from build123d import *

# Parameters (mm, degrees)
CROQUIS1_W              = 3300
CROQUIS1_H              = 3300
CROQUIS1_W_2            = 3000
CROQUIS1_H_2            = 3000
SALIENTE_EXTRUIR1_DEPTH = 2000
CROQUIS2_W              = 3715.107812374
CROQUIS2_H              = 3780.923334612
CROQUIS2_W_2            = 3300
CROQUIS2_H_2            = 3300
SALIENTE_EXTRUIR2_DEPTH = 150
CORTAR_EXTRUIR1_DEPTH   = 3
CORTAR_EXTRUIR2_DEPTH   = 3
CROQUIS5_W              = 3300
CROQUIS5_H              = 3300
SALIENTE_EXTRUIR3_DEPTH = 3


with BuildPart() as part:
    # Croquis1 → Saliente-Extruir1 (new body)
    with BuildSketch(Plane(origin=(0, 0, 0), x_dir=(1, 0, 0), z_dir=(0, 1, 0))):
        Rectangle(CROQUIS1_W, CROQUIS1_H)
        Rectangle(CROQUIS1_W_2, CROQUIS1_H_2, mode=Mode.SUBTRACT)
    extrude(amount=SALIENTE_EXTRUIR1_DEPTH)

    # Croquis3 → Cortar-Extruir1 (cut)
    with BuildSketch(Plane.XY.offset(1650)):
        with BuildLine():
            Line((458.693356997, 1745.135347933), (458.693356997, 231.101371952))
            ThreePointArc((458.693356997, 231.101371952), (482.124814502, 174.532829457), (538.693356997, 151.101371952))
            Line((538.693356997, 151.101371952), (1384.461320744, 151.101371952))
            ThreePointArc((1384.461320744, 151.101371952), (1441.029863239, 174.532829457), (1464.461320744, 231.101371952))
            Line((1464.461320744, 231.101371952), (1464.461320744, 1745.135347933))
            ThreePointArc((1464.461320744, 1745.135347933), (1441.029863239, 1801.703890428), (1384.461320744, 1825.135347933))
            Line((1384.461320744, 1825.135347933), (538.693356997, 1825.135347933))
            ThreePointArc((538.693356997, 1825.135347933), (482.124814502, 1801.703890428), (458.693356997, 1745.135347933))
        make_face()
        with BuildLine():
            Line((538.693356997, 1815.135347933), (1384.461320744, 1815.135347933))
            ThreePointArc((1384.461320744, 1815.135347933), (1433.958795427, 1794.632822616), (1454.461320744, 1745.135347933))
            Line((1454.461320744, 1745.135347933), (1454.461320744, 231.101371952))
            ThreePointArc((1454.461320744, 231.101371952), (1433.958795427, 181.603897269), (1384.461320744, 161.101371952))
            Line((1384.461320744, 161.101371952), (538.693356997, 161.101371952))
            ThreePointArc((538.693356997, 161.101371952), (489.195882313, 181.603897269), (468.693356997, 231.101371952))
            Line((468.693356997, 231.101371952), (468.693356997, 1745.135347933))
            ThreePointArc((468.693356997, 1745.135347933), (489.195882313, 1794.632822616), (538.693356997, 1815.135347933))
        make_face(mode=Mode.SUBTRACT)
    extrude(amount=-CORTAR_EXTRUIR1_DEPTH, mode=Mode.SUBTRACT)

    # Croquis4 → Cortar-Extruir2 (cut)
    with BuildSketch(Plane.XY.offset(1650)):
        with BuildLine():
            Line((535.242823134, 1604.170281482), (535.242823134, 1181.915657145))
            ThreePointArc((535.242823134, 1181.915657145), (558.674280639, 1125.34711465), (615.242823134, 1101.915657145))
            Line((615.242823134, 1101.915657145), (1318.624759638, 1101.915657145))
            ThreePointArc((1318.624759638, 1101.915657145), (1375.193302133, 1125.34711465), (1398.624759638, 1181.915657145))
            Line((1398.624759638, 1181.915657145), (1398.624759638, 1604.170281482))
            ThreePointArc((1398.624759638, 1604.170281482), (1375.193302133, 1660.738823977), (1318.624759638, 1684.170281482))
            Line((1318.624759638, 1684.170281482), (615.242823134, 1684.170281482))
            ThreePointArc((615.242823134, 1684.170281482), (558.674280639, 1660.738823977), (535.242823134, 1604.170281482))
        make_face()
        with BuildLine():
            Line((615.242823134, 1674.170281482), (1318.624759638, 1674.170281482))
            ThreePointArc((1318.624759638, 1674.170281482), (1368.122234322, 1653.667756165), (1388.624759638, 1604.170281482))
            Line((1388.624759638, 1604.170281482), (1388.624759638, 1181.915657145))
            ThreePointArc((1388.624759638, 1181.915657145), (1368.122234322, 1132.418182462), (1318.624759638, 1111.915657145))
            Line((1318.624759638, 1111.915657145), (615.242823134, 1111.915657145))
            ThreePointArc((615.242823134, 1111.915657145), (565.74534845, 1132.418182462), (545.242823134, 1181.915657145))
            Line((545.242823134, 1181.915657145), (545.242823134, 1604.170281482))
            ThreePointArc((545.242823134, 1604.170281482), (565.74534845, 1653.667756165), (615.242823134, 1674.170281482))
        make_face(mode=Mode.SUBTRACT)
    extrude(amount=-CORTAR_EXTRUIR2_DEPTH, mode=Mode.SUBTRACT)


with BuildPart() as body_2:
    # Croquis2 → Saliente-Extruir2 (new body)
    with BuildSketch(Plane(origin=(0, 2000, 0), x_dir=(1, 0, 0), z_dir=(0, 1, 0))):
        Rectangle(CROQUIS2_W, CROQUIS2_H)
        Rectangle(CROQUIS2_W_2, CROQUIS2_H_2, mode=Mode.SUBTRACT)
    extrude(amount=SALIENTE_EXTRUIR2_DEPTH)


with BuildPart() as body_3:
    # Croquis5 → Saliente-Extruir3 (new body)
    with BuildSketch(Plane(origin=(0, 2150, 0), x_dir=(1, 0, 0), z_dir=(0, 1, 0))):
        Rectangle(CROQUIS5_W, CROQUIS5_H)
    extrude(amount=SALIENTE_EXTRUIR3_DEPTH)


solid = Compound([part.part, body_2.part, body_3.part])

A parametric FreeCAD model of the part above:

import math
import FreeCAD as App
import Part
import Sketcher
from FreeCAD import Vector


def add_polygon(sketch, points):
    """Adds a closed chain of lines whose ends are joined by coincident constraints."""
    first, n = sketch.GeometryCount, len(points)
    for a, b in zip(points, points[1:] + points[:1]):
        sketch.addGeometry(Part.LineSegment(App.Vector(*a, 0), App.Vector(*b, 0)), False)
    for i in range(n):
        sketch.addConstraint(Sketcher.Constraint("Coincident", first + i, 2, first + (i + 1) % n, 1))

doc = App.newDocument("Part")
body = doc.addObject("PartDesign::Body", "Body")

sketch1 = body.newObject("Sketcher::SketchObject", "Sketch")
sketch1.AttachmentSupport = (doc.getObject("XZ_Plane"), [""])
sketch1.MapMode = "FlatFace"
add_polygon(sketch1, [(-1650, -1650), (-1650, 1650), (1650, 1650), (1650, -1650)])
add_polygon(sketch1, [(1500, 1500), (-1500, 1500), (-1500, -1500), (1500, -1500)])
sketch1.addConstraint([
    Sketcher.Constraint("Vertical", 0),
    Sketcher.Constraint("Horizontal", 1),
    Sketcher.Constraint("Vertical", 2),
    Sketcher.Constraint("Horizontal", 3),
    Sketcher.Constraint("Horizontal", 4),
    Sketcher.Constraint("Vertical", 5),
    Sketcher.Constraint("Horizontal", 6),
    Sketcher.Constraint("Vertical", 7),
    Sketcher.Constraint("Symmetric", 0, 2, 2, 2, -1, 1),
    Sketcher.Constraint("Symmetric", 4, 2, 6, 2, -1, 1),
    Sketcher.Constraint("Equal", 3, 0),
    Sketcher.Constraint("Equal", 6, 5),
    Sketcher.Constraint("DistanceX", 1, 1, 1, 2, 3300.0),
    Sketcher.Constraint("DistanceX", 4, 2, 4, 1, 3000.0),
])
pad1 = body.newObject("PartDesign::Pad", "Pad")
pad1.Profile = sketch1
pad1.Length = 2000
pad1.Reversed = True

sketch2 = body.newObject("Sketcher::SketchObject", "Sketch001")
sketch2.AttachmentSupport = (doc.getObject("XY_Plane"), [""])
sketch2.MapMode = "FlatFace"
sketch2.AttachmentOffset = App.Placement(Vector(0, 0, 1650), App.Rotation())
sketch2.addGeometry([
    Part.LineSegment(Vector(458.693357, 1745.135348, 0), Vector(458.693357, 231.101372, 0)),
    Part.ArcOfCircle(Part.Circle(Vector(538.693357, 231.101372, 0), Vector(0, 0, 1), 80), math.radians(180), math.radians(270)),
    Part.LineSegment(Vector(538.693357, 151.101372, 0), Vector(1384.461321, 151.101372, 0)),
    Part.ArcOfCircle(Part.Circle(Vector(1384.461321, 231.101372, 0), Vector(0, 0, 1), 80), math.radians(-90), math.radians(0)),
    Part.LineSegment(Vector(1464.461321, 231.101372, 0), Vector(1464.461321, 1745.135348, 0)),
    Part.ArcOfCircle(Part.Circle(Vector(1384.461321, 1745.135348, 0), Vector(0, 0, 1), 80), math.radians(0), math.radians(90)),
    Part.LineSegment(Vector(1384.461321, 1825.135348, 0), Vector(538.693357, 1825.135348, 0)),
    Part.ArcOfCircle(Part.Circle(Vector(538.693357, 1745.135348, 0), Vector(0, 0, 1), 80), math.radians(90), math.radians(180)),
    Part.ArcOfCircle(Part.Circle(Vector(538.693357, 1745.135348, 0), Vector(0, 0, 1), 70), math.radians(90), math.radians(180)),
    Part.LineSegment(Vector(538.693357, 1815.135348, 0), Vector(1384.461321, 1815.135348, 0)),
    Part.ArcOfCircle(Part.Circle(Vector(1384.461321, 1745.135348, 0), Vector(0, 0, 1), 70), math.radians(0), math.radians(90)),
    Part.LineSegment(Vector(1454.461321, 1745.135348, 0), Vector(1454.461321, 231.101372, 0)),
    Part.ArcOfCircle(Part.Circle(Vector(1384.461321, 231.101372, 0), Vector(0, 0, 1), 70), math.radians(-90), math.radians(0)),
    Part.LineSegment(Vector(1384.461321, 161.101372, 0), Vector(538.693357, 161.101372, 0)),
    Part.ArcOfCircle(Part.Circle(Vector(538.693357, 231.101372, 0), Vector(0, 0, 1), 70), math.radians(180), math.radians(270)),
    Part.LineSegment(Vector(468.693357, 231.101372, 0), Vector(468.693357, 1745.135348, 0)),
], False)
sketch2.addConstraint([
    Sketcher.Constraint("Tangent", 0, 2, 1, 1),
    Sketcher.Constraint("Tangent", 1, 2, 2, 1),
    Sketcher.Constraint("Tangent", 2, 2, 3, 1),
    Sketcher.Constraint("Tangent", 3, 2, 4, 1),
    Sketcher.Constraint("Tangent", 4, 2, 5, 1),
    Sketcher.Constraint("Tangent", 5, 2, 6, 1),
    Sketcher.Constraint("Tangent", 6, 2, 7, 1),
    Sketcher.Constraint("Tangent", 7, 2, 0, 1),
    Sketcher.Constraint("Tangent", 8, 1, 9, 1),
    Sketcher.Constraint("Tangent", 9, 2, 10, 2),
    Sketcher.Constraint("Tangent", 10, 1, 11, 1),
    Sketcher.Constraint("Tangent", 11, 2, 12, 2),
    Sketcher.Constraint("Tangent", 12, 1, 13, 1),
    Sketcher.Constraint("Tangent", 13, 2, 14, 2),
    Sketcher.Constraint("Tangent", 14, 1, 15, 1),
    Sketcher.Constraint("Tangent", 15, 2, 8, 2),
    Sketcher.Constraint("Vertical", 0),
    Sketcher.Constraint("Horizontal", 2),
    Sketcher.Constraint("Vertical", 4),
    Sketcher.Constraint("Horizontal", 6),
    Sketcher.Constraint("Horizontal", 9),
    Sketcher.Constraint("Vertical", 11),
    Sketcher.Constraint("Horizontal", 13),
    Sketcher.Constraint("Vertical", 15),
    Sketcher.Constraint("Coincident", 8, 3, 7, 3),
    Sketcher.Constraint("Coincident", 10, 3, 5, 3),
    Sketcher.Constraint("Coincident", 12, 3, 3, 3),
    Sketcher.Constraint("Equal", 1, 3),
    Sketcher.Constraint("Equal", 3, 5),
    Sketcher.Constraint("Equal", 5, 7),
    Sketcher.Constraint("Equal", 12, 14),
    Sketcher.Constraint("Radius", 1, 80.0),
    Sketcher.Constraint("Radius", 8, 70.0),
    Sketcher.Constraint("DistanceX", 2, 1, 2, 2, 845.767964),
    Sketcher.Constraint("DistanceY", 0, 2, 0, 1, 1514.033976),
    Sketcher.Constraint("DistanceY", -1, 1, 1, 3, 231.101372),
    Sketcher.Constraint("DistanceX", -1, 1, 3, 3, 1384.461321),
])
pocket1 = body.newObject("PartDesign::Pocket", "Pocket")
pocket1.Profile = sketch2
pocket1.Length = 3

sketch3 = body.newObject("Sketcher::SketchObject", "Sketch002")
sketch3.AttachmentSupport = (doc.getObject("XY_Plane"), [""])
sketch3.MapMode = "FlatFace"
sketch3.AttachmentOffset = App.Placement(Vector(0, 0, 1650), App.Rotation())
sketch3.addGeometry([
    Part.LineSegment(Vector(535.242823, 1604.170281, 0), Vector(535.242823, 1181.915657, 0)),
    Part.ArcOfCircle(Part.Circle(Vector(615.242823, 1181.915657, 0), Vector(0, 0, 1), 80), math.radians(180), math.radians(270)),
    Part.LineSegment(Vector(615.242823, 1101.915657, 0), Vector(1318.62476, 1101.915657, 0)),
    Part.ArcOfCircle(Part.Circle(Vector(1318.62476, 1181.915657, 0), Vector(0, 0, 1), 80), math.radians(-90), math.radians(0)),
    Part.LineSegment(Vector(1398.62476, 1181.915657, 0), Vector(1398.62476, 1604.170281, 0)),
    Part.ArcOfCircle(Part.Circle(Vector(1318.62476, 1604.170281, 0), Vector(0, 0, 1), 80), math.radians(0), math.radians(90)),
    Part.LineSegment(Vector(1318.62476, 1684.170281, 0), Vector(615.242823, 1684.170281, 0)),
    Part.ArcOfCircle(Part.Circle(Vector(615.242823, 1604.170281, 0), Vector(0, 0, 1), 80), math.radians(90), math.radians(180)),
    Part.ArcOfCircle(Part.Circle(Vector(615.242823, 1604.170281, 0), Vector(0, 0, 1), 70), math.radians(90), math.radians(180)),
    Part.LineSegment(Vector(615.242823, 1674.170281, 0), Vector(1318.62476, 1674.170281, 0)),
    Part.ArcOfCircle(Part.Circle(Vector(1318.62476, 1604.170281, 0), Vector(0, 0, 1), 70), math.radians(0), math.radians(90)),
    Part.LineSegment(Vector(1388.62476, 1604.170281, 0), Vector(1388.62476, 1181.915657, 0)),
    Part.ArcOfCircle(Part.Circle(Vector(1318.62476, 1181.915657, 0), Vector(0, 0, 1), 70), math.radians(-90), math.radians(0)),
    Part.LineSegment(Vector(1318.62476, 1111.915657, 0), Vector(615.242823, 1111.915657, 0)),
    Part.ArcOfCircle(Part.Circle(Vector(615.242823, 1181.915657, 0), Vector(0, 0, 1), 70), math.radians(180), math.radians(270)),
    Part.LineSegment(Vector(545.242823, 1181.915657, 0), Vector(545.242823, 1604.170281, 0)),
], False)
sketch3.addConstraint([
    Sketcher.Constraint("Tangent", 0, 2, 1, 1),
    Sketcher.Constraint("Tangent", 1, 2, 2, 1),
    Sketcher.Constraint("Tangent", 2, 2, 3, 1),
    Sketcher.Constraint("Tangent", 3, 2, 4, 1),
    Sketcher.Constraint("Tangent", 4, 2, 5, 1),
    Sketcher.Constraint("Tangent", 5, 2, 6, 1),
    Sketcher.Constraint("Tangent", 6, 2, 7, 1),
    Sketcher.Constraint("Tangent", 7, 2, 0, 1),
    Sketcher.Constraint("Tangent", 8, 1, 9, 1),
    Sketcher.Constraint("Tangent", 9, 2, 10, 2),
    Sketcher.Constraint("Tangent", 10, 1, 11, 1),
    Sketcher.Constraint("Tangent", 11, 2, 12, 2),
    Sketcher.Constraint("Tangent", 12, 1, 13, 1),
    Sketcher.Constraint("Tangent", 13, 2, 14, 2),
    Sketcher.Constraint("Tangent", 14, 1, 15, 1),
    Sketcher.Constraint("Tangent", 15, 2, 8, 2),
    Sketcher.Constraint("Vertical", 0),
    Sketcher.Constraint("Horizontal", 2),
    Sketcher.Constraint("Vertical", 4),
    Sketcher.Constraint("Horizontal", 6),
    Sketcher.Constraint("Horizontal", 9),
    Sketcher.Constraint("Vertical", 11),
    Sketcher.Constraint("Horizontal", 13),
    Sketcher.Constraint("Vertical", 15),
    Sketcher.Constraint("Coincident", 8, 3, 7, 3),
    Sketcher.Constraint("Coincident", 10, 3, 5, 3),
    Sketcher.Constraint("Coincident", 12, 3, 3, 3),
    Sketcher.Constraint("Equal", 1, 3),
    Sketcher.Constraint("Equal", 3, 5),
    Sketcher.Constraint("Equal", 5, 7),
    Sketcher.Constraint("Equal", 12, 14),
    Sketcher.Constraint("Radius", 1, 80.0),
    Sketcher.Constraint("Radius", 8, 70.0),
    Sketcher.Constraint("DistanceX", 2, 1, 2, 2, 703.381937),
    Sketcher.Constraint("DistanceY", 0, 2, 0, 1, 422.254624),
    Sketcher.Constraint("DistanceX", -1, 1, 3, 3, 1318.62476),
    Sketcher.Constraint("DistanceY", -1, 1, 5, 3, 1604.170281),
])
pocket2 = body.newObject("PartDesign::Pocket", "Pocket001")
pocket2.Profile = sketch3
pocket2.Length = 3
body2 = doc.addObject("PartDesign::Body", "Body001")

sketch4 = body2.newObject("Sketcher::SketchObject", "Sketch003")
sketch4.AttachmentSupport = (doc.getObject("XZ_Plane001"), [""])
sketch4.MapMode = "FlatFace"
sketch4.AttachmentOffset = App.Placement(Vector(0, 0, -2000), App.Rotation())
add_polygon(sketch4, [(-1857.553906, -1890.461667), (-1857.553906, 1890.461667), (1857.553906, 1890.461667), (1857.553906, -1890.461667)])
add_polygon(sketch4, [(1650, 1650), (-1650, 1650), (-1650, -1650), (1650, -1650)])
sketch4.addConstraint([
    Sketcher.Constraint("Vertical", 0),
    Sketcher.Constraint("Horizontal", 1),
    Sketcher.Constraint("Vertical", 2),
    Sketcher.Constraint("Horizontal", 3),
    Sketcher.Constraint("Horizontal", 4),
    Sketcher.Constraint("Vertical", 5),
    Sketcher.Constraint("Horizontal", 6),
    Sketcher.Constraint("Vertical", 7),
    Sketcher.Constraint("Symmetric", 0, 2, 2, 2, -1, 1),
    Sketcher.Constraint("Symmetric", 4, 2, 6, 2, -1, 1),
    Sketcher.Constraint("Equal", 6, 5),
    Sketcher.Constraint("DistanceX", 4, 2, 4, 1, 3300.0),
    Sketcher.Constraint("DistanceX", 1, 1, 1, 2, 3715.107812),
    Sketcher.Constraint("DistanceY", 0, 1, 0, 2, 3780.923335),
])
pad2 = body2.newObject("PartDesign::Pad", "Pad001")
pad2.Profile = sketch4
pad2.Length = 150
pad2.Reversed = True
body3 = doc.addObject("PartDesign::Body", "Body002")

sketch5 = body3.newObject("Sketcher::SketchObject", "Sketch004")
sketch5.AttachmentSupport = (doc.getObject("XZ_Plane002"), [""])
sketch5.MapMode = "FlatFace"
sketch5.AttachmentOffset = App.Placement(Vector(0, 0, -2150), App.Rotation())
add_polygon(sketch5, [(-1650, -1650), (-1650, 1650), (1650, 1650), (1650, -1650)])
sketch5.addConstraint([
    Sketcher.Constraint("Vertical", 0),
    Sketcher.Constraint("Horizontal", 1),
    Sketcher.Constraint("Vertical", 2),
    Sketcher.Constraint("Horizontal", 3),
    Sketcher.Constraint("Symmetric", 0, 2, 2, 2, -1, 1),
    Sketcher.Constraint("Equal", 3, 0),
    Sketcher.Constraint("DistanceX", 1, 1, 1, 2, 3300.0),
])
pad3 = body3.newObject("PartDesign::Pad", "Pad002")
pad3.Profile = sketch5
pad3.Length = 3
pad3.Reversed = True

doc.recompute()
